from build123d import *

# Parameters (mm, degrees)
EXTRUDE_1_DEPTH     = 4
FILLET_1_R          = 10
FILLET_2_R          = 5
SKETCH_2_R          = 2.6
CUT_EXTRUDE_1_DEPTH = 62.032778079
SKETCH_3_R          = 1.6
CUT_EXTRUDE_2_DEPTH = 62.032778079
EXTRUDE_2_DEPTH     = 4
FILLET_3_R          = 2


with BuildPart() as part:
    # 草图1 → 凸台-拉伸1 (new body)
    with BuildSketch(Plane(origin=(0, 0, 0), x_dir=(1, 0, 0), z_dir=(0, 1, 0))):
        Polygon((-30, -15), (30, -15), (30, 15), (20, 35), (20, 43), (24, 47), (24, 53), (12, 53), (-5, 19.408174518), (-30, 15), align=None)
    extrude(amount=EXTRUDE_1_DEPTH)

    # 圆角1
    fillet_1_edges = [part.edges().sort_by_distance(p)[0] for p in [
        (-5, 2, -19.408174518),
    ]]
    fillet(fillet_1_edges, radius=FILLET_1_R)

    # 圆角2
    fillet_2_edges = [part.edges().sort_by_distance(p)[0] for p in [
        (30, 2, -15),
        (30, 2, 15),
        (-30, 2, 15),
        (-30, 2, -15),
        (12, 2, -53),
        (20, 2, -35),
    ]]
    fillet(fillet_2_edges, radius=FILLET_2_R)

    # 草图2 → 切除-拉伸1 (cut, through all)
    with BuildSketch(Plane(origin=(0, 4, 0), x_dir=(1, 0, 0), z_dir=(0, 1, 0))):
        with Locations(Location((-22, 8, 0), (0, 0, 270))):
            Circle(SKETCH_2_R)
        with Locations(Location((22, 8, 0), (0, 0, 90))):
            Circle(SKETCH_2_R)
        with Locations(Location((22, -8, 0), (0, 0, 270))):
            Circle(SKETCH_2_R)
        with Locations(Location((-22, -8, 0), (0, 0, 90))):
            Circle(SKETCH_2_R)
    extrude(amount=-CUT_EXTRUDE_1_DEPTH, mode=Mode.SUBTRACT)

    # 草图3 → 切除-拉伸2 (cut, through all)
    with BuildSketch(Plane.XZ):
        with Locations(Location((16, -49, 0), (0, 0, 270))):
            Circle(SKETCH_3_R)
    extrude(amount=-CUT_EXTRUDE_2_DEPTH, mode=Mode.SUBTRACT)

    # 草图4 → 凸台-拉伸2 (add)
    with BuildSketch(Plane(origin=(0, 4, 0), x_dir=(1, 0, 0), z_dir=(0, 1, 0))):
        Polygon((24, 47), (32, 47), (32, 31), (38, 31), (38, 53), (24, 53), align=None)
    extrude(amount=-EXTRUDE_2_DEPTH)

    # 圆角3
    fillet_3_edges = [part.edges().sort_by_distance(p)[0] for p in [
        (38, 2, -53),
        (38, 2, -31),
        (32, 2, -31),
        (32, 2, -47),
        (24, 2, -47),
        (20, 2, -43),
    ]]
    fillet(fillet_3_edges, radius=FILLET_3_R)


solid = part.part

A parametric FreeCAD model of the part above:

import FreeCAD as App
import Part
import Sketcher

V = App.Vector
Q = App.Units.Quantity


def edges_at(feature, points):
    """Names of the edges that pass closest to the given points."""
    edges = feature.Shape.Edges
    near = lambda p: min(range(len(edges)), key=lambda i: edges[i].distToShape(Part.Vertex(*p))[0])
    return sorted({f"Edge{near(p) + 1}" for p in points})

doc = App.newDocument("Part")
body = doc.addObject("PartDesign::Body", "Body")

sketch1 = doc.addObject("Sketcher::SketchObject", "Sketch")
body.addObject(sketch1)
sketch1.AttachmentSupport = (doc.XZ_Plane, [""])
sketch1.MapMode = "FlatFace"
sketch1.addGeometry(Part.LineSegment(V(-30, 15, 0), V(30, 15, 0)), False)
sketch1.addGeometry(Part.LineSegment(V(30, 15, 0), V(30, -15, 0)), False)
sketch1.addGeometry(Part.LineSegment(V(30, -15, 0), V(20, -35, 0)), False)
sketch1.addGeometry(Part.LineSegment(V(20, -35, 0), V(20, -43, 0)), False)
sketch1.addGeometry(Part.LineSegment(V(20, -43, 0), V(24, -47, 0)), False)
sketch1.addGeometry(Part.LineSegment(V(24, -47, 0), V(24, -53, 0)), False)
sketch1.addGeometry(Part.LineSegment(V(24, -53, 0), V(12, -53, 0)), False)
sketch1.addGeometry(Part.LineSegment(V(12, -53, 0), V(-5, -19, 0)), False)
sketch1.addGeometry(Part.LineSegment(V(-5, -19, 0), V(-30, -15, 0)), False)
sketch1.addGeometry(Part.LineSegment(V(-30, -15, 0), V(-30, 15, 0)), False)
sketch1.addConstraint(Sketcher.Constraint("Coincident", 0, 2, 1, 1))
sketch1.addConstraint(Sketcher.Constraint("Coincident", 1, 2, 2, 1))
sketch1.addConstraint(Sketcher.Constraint("Coincident", 2, 2, 3, 1))
sketch1.addConstraint(Sketcher.Constraint("Coincident", 3, 2, 4, 1))
sketch1.addConstraint(Sketcher.Constraint("Coincident", 4, 2, 5, 1))
sketch1.addConstraint(Sketcher.Constraint("Coincident", 5, 2, 6, 1))
sketch1.addConstraint(Sketcher.Constraint("Coincident", 6, 2, 7, 1))
sketch1.addConstraint(Sketcher.Constraint("Coincident", 7, 2, 8, 1))
sketch1.addConstraint(Sketcher.Constraint("Coincident", 8, 2, 9, 1))
sketch1.addConstraint(Sketcher.Constraint("Coincident", 9, 2, 0, 1))
sketch1.addConstraint(Sketcher.Constraint("Horizontal", 0))
sketch1.addConstraint(Sketcher.Constraint("Vertical", 1))
sketch1.addConstraint(Sketcher.Constraint("Vertical", 3))
sketch1.addConstraint(Sketcher.Constraint("Vertical", 5))
sketch1.addConstraint(Sketcher.Constraint("Horizontal", 6))
sketch1.addConstraint(Sketcher.Constraint("Vertical", 9))
sketch1.addConstraint(Sketcher.Constraint("Symmetric", 0, 2, 8, 2, -1, 1))
sketch1.addConstraint(Sketcher.Constraint("Horizontal", 1, 2, 8, 2))
sketch1.addConstraint(Sketcher.Constraint("DistanceX", 0, 1, 0, 2, 60.0))
sketch1.addConstraint(Sketcher.Constraint("DistanceX", 6, 2, 6, 1, 12.0))
sketch1.addConstraint(Sketcher.Constraint("DistanceY", 1, 2, 1, 1, 30.0))
sketch1.addConstraint(Sketcher.Constraint("DistanceY", 3, 2, 3, 1, 8.0))
sketch1.addConstraint(Sketcher.Constraint("DistanceY", 5, 2, 5, 1, 6.0))
sketch1.addConstraint(Sketcher.Constraint("Angle", 4, Q("-45 deg")))
sketch1.addConstraint(Sketcher.Constraint("Angle", 8, Q("170 deg")))
sketch1.addConstraint(Sketcher.Constraint("DistanceX", -1, 1, 2, 2, 20.0))
sketch1.addConstraint(Sketcher.Constraint("DistanceY", 2, 2, -1, 1, 35.0))
sketch1.addConstraint(Sketcher.Constraint("DistanceX", -1, 1, 4, 2, 24.0))
sketch1.addConstraint(Sketcher.Constraint("DistanceX", 7, 2, -1, 1, 5.0))
pad1 = doc.addObject("PartDesign::Pad", "Pad")
body.addObject(pad1)
pad1.Profile = sketch1
pad1.Length = 4
pad1.Reversed = True
doc.recompute()

fillet = doc.addObject("PartDesign::Fillet", "Fillet")
body.addObject(fillet)
fillet.Base = (pad1, edges_at(pad1, [(-5, 2, -19.408)]))
fillet.Radius = 10
doc.recompute()

fillet2 = doc.addObject("PartDesign::Fillet", "Fillet001")
body.addObject(fillet2)
fillet2.Base = (fillet, edges_at(fillet, [
    (30, 2, -15),
    (30, 2, 15),
    (-30, 2, 15),
    (-30, 2, -15),
    (12, 2, -53),
    (20, 2, -35),
]))
fillet2.Radius = 5

sketch2 = doc.addObject("Sketcher::SketchObject", "Sketch001")
body.addObject(sketch2)
sketch2.AttachmentSupport = (doc.XZ_Plane, [""])
sketch2.MapMode = "FlatFace"
sketch2.AttachmentOffset = App.Placement(V(0, 0, -4), App.Rotation())
sketch2.addGeometry(Part.Circle(V(-22, -8, 0), V(0, 0, 1), 2.6), False)
sketch2.addGeometry(Part.Circle(V(22, -8, 0), V(0, 0, 1), 2.6), False)
sketch2.addGeometry(Part.Circle(V(22, 8, 0), V(0, 0, 1), 2.6), False)
sketch2.addGeometry(Part.Circle(V(-22, 8, 0), V(0, 0, 1), 2.6), False)
sketch2.addConstraint(Sketcher.Constraint("Equal", 0, 1))
sketch2.addConstraint(Sketcher.Constraint("Equal", 1, 2))
sketch2.addConstraint(Sketcher.Constraint("Equal", 2, 3))
sketch2.addConstraint(Sketcher.Constraint("Symmetric", 0, 3, 2, 3, -1, 1))
sketch2.addConstraint(Sketcher.Constraint("Symmetric", 1, 3, 3, 3, -1, 1))
sketch2.addConstraint(Sketcher.Constraint("Symmetric", 0, 3, 1, 3, -2))
sketch2.addConstraint(Sketcher.Constraint("Diameter", 0, 5.2))
sketch2.addConstraint(Sketcher.Constraint("DistanceX", 0, 3, -1, 1, 22.0))
sketch2.addConstraint(Sketcher.Constraint("DistanceY", 0, 3, -1, 1, 8.0))
pocket1 = doc.addObject("PartDesign::Pocket", "Pocket")
body.addObject(pocket1)
pocket1.Profile = sketch2
pocket1.Type = "ThroughAll"
pocket1.Reversed = True

sketch3 = doc.addObject("Sketcher::SketchObject", "Sketch002")
body.addObject(sketch3)
sketch3.AttachmentSupport = (doc.XZ_Plane, [""])
sketch3.MapMode = "FlatFace"
sketch3.addGeometry(Part.Circle(V(16, -49, 0), V(0, 0, 1), 1.6), False)
sketch3.addConstraint(Sketcher.Constraint("Diameter", 0, 3.2))
sketch3.addConstraint(Sketcher.Constraint("DistanceX", -1, 1, 0, 3, 16.0))
sketch3.addConstraint(Sketcher.Constraint("DistanceY", 0, 3, -1, 1, 49.0))
pocket2 = doc.addObject("PartDesign::Pocket", "Pocket001")
body.addObject(pocket2)
pocket2.Profile = sketch3
pocket2.Type = "ThroughAll"

sketch4 = doc.addObject("Sketcher::SketchObject", "Sketch003")
body.addObject(sketch4)
sketch4.AttachmentSupport = (doc.XZ_Plane, [""])
sketch4.MapMode = "FlatFace"
sketch4.AttachmentOffset = App.Placement(V(0, 0, -4), App.Rotation())
sketch4.addGeometry(Part.LineSegment(V(24, -47, 0), V(32, -47, 0)), False)
sketch4.addGeometry(Part.LineSegment(V(32, -47, 0), V(32, -31, 0)), False)
sketch4.addGeometry(Part.LineSegment(V(32, -31, 0), V(38, -31, 0)), False)
sketch4.addGeometry(Part.LineSegment(V(38, -31, 0), V(38, -53, 0)), False)
sketch4.addGeometry(Part.LineSegment(V(38, -53, 0), V(24, -53, 0)), False)
sketch4.addGeometry(Part.LineSegment(V(24, -53, 0), V(24, -47, 0)), False)
sketch4.addConstraint(Sketcher.Constraint("Coincident", 0, 2, 1, 1))
sketch4.addConstraint(Sketcher.Constraint("Coincident", 1, 2, 2, 1))
sketch4.addConstraint(Sketcher.Constraint("Coincident", 2, 2, 3, 1))
sketch4.addConstraint(Sketcher.Constraint("Coincident", 3, 2, 4, 1))
sketch4.addConstraint(Sketcher.Constraint("Coincident", 4, 2, 5, 1))
sketch4.addConstraint(Sketcher.Constraint("Coincident", 5, 2, 0, 1))
sketch4.addConstraint(Sketcher.Constraint("Horizontal", 0))
sketch4.addConstraint(Sketcher.Constraint("Vertical", 1))
sketch4.addConstraint(Sketcher.Constraint("Horizontal", 2))
sketch4.addConstraint(Sketcher.Constraint("Vertical", 3))
sketch4.addConstraint(Sketcher.Constraint("Horizontal", 4))
sketch4.addConstraint(Sketcher.Constraint("Vertical", 5))
sketch4.addConstraint(Sketcher.Constraint("Equal", 2, 5))
sketch4.addConstraint(Sketcher.Constraint("DistanceX", 0, 1, 0, 2, 8.0))
sketch4.addConstraint(Sketcher.Constraint("DistanceX", 2, 1, 2, 2, 6.0))
sketch4.addConstraint(Sketcher.Constraint("DistanceY", 1, 1, 1, 2, 16.0))
sketch4.addConstraint(Sketcher.Constraint("DistanceX", -1, 1, 0, 2, 32.0))
sketch4.addConstraint(Sketcher.Constraint("DistanceY", 0, 2, -1, 1, 47.0))
pad2 = doc.addObject("PartDesign::Pad", "Pad001")
body.addObject(pad2)
pad2.Profile = sketch4
pad2.Length = 4
doc.recompute()

fillet3 = doc.addObject("PartDesign::Fillet", "Fillet002")
body.addObject(fillet3)
fillet3.Base = (pad2, edges_at(pad2, [
    (38, 2, -53),
    (38, 2, -31),
    (32, 2, -31),
    (32, 2, -47),
    (24, 2, -47),
    (20, 2, -43),
]))
fillet3.Radius = 2

doc.recompute()
